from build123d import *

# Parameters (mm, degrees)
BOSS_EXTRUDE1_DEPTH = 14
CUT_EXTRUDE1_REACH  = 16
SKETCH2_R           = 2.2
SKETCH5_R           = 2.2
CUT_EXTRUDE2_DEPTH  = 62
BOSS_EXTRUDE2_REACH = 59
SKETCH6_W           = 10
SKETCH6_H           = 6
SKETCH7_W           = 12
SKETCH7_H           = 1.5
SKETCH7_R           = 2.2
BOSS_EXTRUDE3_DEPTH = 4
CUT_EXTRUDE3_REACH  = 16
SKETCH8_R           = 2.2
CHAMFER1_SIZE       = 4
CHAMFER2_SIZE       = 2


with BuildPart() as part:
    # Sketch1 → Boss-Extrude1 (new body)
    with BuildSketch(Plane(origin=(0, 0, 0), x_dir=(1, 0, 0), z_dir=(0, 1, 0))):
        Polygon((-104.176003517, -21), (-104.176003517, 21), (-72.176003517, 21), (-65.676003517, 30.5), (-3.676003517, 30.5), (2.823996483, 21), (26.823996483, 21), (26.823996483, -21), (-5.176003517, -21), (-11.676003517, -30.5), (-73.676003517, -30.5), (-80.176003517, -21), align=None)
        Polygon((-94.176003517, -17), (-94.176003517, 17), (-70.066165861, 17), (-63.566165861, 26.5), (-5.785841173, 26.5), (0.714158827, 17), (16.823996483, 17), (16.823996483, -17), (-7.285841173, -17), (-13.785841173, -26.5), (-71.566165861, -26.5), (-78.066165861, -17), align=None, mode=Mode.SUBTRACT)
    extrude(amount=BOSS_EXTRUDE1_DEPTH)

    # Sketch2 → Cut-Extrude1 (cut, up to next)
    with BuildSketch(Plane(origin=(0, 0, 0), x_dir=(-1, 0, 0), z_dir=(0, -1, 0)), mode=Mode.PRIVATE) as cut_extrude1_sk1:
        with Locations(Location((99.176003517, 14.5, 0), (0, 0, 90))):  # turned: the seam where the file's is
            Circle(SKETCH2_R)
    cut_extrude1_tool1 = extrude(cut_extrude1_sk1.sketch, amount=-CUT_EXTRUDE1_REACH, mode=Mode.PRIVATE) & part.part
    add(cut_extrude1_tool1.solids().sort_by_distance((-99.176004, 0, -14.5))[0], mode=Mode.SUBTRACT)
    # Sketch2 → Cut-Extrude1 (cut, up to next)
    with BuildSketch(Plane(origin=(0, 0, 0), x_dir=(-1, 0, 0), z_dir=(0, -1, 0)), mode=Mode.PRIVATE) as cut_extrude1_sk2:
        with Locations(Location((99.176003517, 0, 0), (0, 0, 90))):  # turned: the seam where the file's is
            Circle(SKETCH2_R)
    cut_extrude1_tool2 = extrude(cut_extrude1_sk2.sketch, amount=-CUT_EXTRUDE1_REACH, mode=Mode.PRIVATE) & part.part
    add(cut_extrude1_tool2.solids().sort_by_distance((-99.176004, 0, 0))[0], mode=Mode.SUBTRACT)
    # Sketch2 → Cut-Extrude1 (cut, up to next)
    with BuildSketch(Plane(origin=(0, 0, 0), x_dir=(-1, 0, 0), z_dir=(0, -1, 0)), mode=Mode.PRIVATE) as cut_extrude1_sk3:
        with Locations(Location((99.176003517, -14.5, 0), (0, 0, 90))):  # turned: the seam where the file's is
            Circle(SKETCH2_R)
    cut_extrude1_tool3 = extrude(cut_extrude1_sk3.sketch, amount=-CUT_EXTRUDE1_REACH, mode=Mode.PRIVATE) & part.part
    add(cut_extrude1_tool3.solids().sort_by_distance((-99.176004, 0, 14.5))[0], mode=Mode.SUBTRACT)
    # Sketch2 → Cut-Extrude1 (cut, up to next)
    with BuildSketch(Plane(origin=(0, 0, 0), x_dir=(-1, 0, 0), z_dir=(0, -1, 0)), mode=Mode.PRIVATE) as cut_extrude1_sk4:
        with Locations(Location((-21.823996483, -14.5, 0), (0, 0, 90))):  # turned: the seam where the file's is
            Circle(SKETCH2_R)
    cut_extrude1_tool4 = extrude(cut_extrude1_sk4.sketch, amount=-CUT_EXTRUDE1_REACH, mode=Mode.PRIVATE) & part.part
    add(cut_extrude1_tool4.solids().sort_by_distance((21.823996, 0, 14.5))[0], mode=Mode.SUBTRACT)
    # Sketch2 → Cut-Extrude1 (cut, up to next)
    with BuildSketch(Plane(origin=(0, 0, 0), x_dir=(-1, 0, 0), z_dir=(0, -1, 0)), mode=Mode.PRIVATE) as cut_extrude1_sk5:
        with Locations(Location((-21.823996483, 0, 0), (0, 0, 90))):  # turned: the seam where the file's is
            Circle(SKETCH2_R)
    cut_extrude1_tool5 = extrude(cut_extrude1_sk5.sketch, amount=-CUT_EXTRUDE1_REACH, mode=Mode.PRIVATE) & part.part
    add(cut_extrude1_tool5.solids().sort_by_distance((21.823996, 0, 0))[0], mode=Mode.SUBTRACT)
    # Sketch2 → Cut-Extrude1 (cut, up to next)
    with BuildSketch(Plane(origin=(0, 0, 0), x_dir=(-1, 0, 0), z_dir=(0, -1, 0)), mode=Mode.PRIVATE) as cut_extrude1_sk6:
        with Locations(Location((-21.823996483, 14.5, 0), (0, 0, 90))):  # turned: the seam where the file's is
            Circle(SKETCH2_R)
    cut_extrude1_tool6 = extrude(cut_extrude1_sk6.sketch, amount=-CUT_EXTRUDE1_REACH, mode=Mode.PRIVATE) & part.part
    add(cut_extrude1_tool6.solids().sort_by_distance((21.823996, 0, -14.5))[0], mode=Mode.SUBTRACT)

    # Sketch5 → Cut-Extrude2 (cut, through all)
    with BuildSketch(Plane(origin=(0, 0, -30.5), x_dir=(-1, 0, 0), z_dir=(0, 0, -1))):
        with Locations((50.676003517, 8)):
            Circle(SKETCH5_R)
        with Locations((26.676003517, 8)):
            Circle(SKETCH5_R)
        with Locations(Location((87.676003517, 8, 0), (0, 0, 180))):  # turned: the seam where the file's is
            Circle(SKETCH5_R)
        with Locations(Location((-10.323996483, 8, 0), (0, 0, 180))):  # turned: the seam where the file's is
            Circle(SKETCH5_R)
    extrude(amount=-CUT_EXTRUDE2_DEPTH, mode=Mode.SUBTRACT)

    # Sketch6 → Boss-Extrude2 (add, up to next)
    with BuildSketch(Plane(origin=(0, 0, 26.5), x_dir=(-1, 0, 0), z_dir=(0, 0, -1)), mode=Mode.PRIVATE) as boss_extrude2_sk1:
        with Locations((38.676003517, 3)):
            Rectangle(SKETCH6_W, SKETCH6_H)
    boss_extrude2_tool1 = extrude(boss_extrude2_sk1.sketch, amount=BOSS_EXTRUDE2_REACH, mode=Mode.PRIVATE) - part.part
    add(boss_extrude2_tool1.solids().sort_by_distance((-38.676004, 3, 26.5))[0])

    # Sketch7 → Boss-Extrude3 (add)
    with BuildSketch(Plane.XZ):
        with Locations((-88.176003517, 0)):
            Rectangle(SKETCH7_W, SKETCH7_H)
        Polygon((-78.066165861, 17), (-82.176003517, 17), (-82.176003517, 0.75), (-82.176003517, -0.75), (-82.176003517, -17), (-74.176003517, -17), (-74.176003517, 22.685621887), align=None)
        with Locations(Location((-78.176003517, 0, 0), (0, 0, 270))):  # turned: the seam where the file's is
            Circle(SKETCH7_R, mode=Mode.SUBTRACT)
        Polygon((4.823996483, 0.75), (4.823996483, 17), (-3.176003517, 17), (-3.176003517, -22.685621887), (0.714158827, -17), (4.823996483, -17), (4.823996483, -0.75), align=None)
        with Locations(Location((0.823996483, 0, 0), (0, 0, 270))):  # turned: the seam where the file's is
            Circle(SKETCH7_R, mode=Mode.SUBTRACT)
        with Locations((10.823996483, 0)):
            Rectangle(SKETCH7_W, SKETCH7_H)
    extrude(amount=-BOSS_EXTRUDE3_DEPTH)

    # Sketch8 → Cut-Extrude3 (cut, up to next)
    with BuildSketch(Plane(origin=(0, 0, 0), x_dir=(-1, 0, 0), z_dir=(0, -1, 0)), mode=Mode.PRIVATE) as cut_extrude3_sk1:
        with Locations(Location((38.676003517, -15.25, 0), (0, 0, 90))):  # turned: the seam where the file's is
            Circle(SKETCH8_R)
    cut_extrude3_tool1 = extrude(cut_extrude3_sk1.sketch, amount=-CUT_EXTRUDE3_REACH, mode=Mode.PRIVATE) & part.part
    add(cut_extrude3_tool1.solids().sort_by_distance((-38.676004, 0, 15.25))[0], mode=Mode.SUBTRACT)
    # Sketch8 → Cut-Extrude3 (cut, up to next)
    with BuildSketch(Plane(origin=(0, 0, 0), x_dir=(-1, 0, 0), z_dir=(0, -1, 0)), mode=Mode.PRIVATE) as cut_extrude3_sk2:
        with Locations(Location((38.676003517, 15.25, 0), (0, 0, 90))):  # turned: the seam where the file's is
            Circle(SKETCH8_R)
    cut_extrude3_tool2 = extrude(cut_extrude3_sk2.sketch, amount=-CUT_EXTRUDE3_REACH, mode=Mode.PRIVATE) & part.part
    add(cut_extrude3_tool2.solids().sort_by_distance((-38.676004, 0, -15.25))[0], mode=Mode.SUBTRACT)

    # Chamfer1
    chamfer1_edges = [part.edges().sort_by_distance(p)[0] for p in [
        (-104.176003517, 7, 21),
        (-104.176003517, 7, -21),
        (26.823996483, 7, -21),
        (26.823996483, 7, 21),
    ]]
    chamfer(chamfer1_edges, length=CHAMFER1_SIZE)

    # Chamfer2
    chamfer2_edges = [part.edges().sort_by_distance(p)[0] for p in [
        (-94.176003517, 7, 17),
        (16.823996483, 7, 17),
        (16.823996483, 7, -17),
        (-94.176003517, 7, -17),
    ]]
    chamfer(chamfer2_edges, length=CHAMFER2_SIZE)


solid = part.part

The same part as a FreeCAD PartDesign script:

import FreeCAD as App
import Part
import Sketcher
from FreeCAD import Vector
Q = App.Units.Quantity


def edges_at(feature, points):
    """Names of the edges that pass closest to the given points."""
    edges = feature.Shape.Edges
    near = lambda p: min(range(len(edges)), key=lambda i: edges[i].distToShape(Part.Vertex(*p))[0])
    return sorted({f"Edge{near(p) + 1}" for p in points})


def add_polygon(sketch, points):
    """Adds a closed chain of lines whose ends are joined by coincident constraints."""
    first, n = sketch.GeometryCount, len(points)
    for a, b in zip(points, points[1:] + points[:1]):
        sketch.addGeometry(Part.LineSegment(App.Vector(*a, 0), App.Vector(*b, 0)), False)
    for i in range(n):
        sketch.addConstraint(Sketcher.Constraint("Coincident", first + i, 2, first + (i + 1) % n, 1))

doc = App.newDocument("Part")
body = doc.addObject("PartDesign::Body", "Body")

sketch1 = body.newObject("Sketcher::SketchObject", "Sketch")
sketch1.AttachmentSupport = (doc.getObject("XZ_Plane"), [""])
sketch1.MapMode = "FlatFace"
add_polygon(sketch1, [(-104, -21), (-104, 21), (-80, 21), (-74, 30), (-12, 30), (-5, 21), (27, 21), (27, -21), (3, -21), (-4, -30), (-66, -30), (-72, -21)])
add_polygon(sketch1, [(-94, 17), (-94, -17), (-70, -17), (-64, -26), (-6, -26), (1, -17), (17, -17), (17, 17), (-7, 17), (-14, 26), (-72, 26), (-78, 17)])
sketch1.addConstraint(Sketcher.Constraint("Vertical", 0))
sketch1.addConstraint(Sketcher.Constraint("Horizontal", 1))
sketch1.addConstraint(Sketcher.Constraint("Horizontal", 3))
sketch1.addConstraint(Sketcher.Constraint("Horizontal", 5))
sketch1.addConstraint(Sketcher.Constraint("Vertical", 6))
sketch1.addConstraint(Sketcher.Constraint("Horizontal", 7))
sketch1.addConstraint(Sketcher.Constraint("Horizontal", 9))
sketch1.addConstraint(Sketcher.Constraint("Horizontal", 11))
sketch1.addConstraint(Sketcher.Constraint("Vertical", 12))
sketch1.addConstraint(Sketcher.Constraint("Horizontal", 13))
sketch1.addConstraint(Sketcher.Constraint("Horizontal", 15))
sketch1.addConstraint(Sketcher.Constraint("Horizontal", 17))
sketch1.addConstraint(Sketcher.Constraint("Vertical", 18))
sketch1.addConstraint(Sketcher.Constraint("Horizontal", 19))
sketch1.addConstraint(Sketcher.Constraint("Horizontal", 21))
sketch1.addConstraint(Sketcher.Constraint("Horizontal", 23))
sketch1.addConstraint(Sketcher.Constraint("Parallel", 2, 8))
sketch1.addConstraint(Sketcher.Constraint("Parallel", 4, 10))
sketch1.addConstraint(Sketcher.Constraint("Parallel", 10, 14))
sketch1.addConstraint(Sketcher.Constraint("Parallel", 8, 16))
sketch1.addConstraint(Sketcher.Constraint("Parallel", 14, 20))
sketch1.addConstraint(Sketcher.Constraint("Parallel", 16, 22))
sketch1.addConstraint(Sketcher.Constraint("Horizontal", 1, 2, 4, 2))
sketch1.addConstraint(Sketcher.Constraint("Horizontal", 7, 2, 10, 2))
sketch1.addConstraint(Sketcher.Constraint("Horizontal", 13, 2, 16, 2))
sketch1.addConstraint(Sketcher.Constraint("Horizontal", 19, 2, 22, 2))
sketch1.addConstraint(Sketcher.Constraint("Equal", 1, 7))
sketch1.addConstraint(Sketcher.Constraint("Equal", 3, 9))
sketch1.addConstraint(Sketcher.Constraint("Equal", 5, 11))
sketch1.addConstraint(Sketcher.Constraint("Equal", 13, 19))
sketch1.addConstraint(Sketcher.Constraint("Equal", 15, 21))
sketch1.addConstraint(Sketcher.Constraint("Equal", 17, 23))
sketch1.addConstraint(Sketcher.Constraint("Equal", 2, 4))
sketch1.addConstraint(Sketcher.Constraint("Equal", 10, 14))
sketch1.addConstraint(Sketcher.Constraint("DistanceX", 1, 1, 1, 2, Q("24 mm")))
sketch1.addConstraint(Sketcher.Constraint("DistanceX", 3, 1, 3, 2, Q("62 mm")))
sketch1.addConstraint(Sketcher.Constraint("DistanceX", 5, 1, 5, 2, Q("32 mm")))
sketch1.addConstraint(Sketcher.Constraint("DistanceY", 0, 1, 0, 2, Q("42 mm")))
sketch1.addConstraint(Sketcher.Constraint("DistanceY", 12, 2, 12, 1, Q("34 mm")))
sketch1.addConstraint(Sketcher.Constraint("DistanceY", -1, 1, 0, 2, Q("21 mm")))
sketch1.addConstraint(Sketcher.Constraint("DistanceY", 12, 2, -1, 1, Q("17 mm")))
sketch1.addConstraint(Sketcher.Constraint("DistanceX", 1, 2, 4, 2, Q("75 mm")))
sketch1.addConstraint(Sketcher.Constraint("DistanceY", 8, 2, 3, 2, Q("61 mm")))
sketch1.addConstraint(Sketcher.Constraint("DistanceX", 11, 2, 12, 2, Q("10 mm")))
sketch1.addConstraint(Sketcher.Constraint("DistanceX", 17, 2, 6, 2, Q("10 mm")))
sketch1.addConstraint(Sketcher.Constraint("DistanceX", 19, 2, 16, 2, Q("8 mm")))
sketch1.addConstraint(Sketcher.Constraint("DistanceX", 13, 1, 13, 2, Q("24.109838 mm")))
sketch1.addConstraint(Sketcher.Constraint("DistanceX", 15, 2, -1, 1, Q("5.785841 mm")))
pad1 = body.newObject("PartDesign::Pad", "Pad")
pad1.Profile = sketch1
pad1.Length = 14
pad1.Reversed = True

sketch2 = body.newObject("Sketcher::SketchObject", "Sketch001")
sketch2.AttachmentSupport = (doc.getObject("XZ_Plane"), [""])
sketch2.MapMode = "FlatFace"
sketch2.addGeometry(Part.Circle(Vector(-99.2, -14.5, 0), Vector(0, 0, 1), 2.2), False)
sketch2.addConstraint(Sketcher.Constraint("Diameter", 0, Q("4.4 mm")))
sketch2.addConstraint(Sketcher.Constraint("DistanceY", 0, 3, -1, 1, Q("14.5 mm")))
sketch2.addConstraint(Sketcher.Constraint("DistanceX", 0, 3, -1, 1, Q("99.176004 mm")))
pocket1 = body.newObject("PartDesign::Pocket", "Pocket")
pocket1.Profile = sketch2
pocket1.Type = "UpToFirst"

sketch3 = body.newObject("Sketcher::SketchObject", "Sketch002")
sketch3.AttachmentSupport = (doc.getObject("XZ_Plane"), [""])
sketch3.MapMode = "FlatFace"
sketch3.addGeometry(Part.Circle(Vector(-99.2, 0, 0), Vector(0, 0, 1), 2.2), False)
sketch3.addConstraint(Sketcher.Constraint("PointOnObject", 0, 3, -1))
sketch3.addConstraint(Sketcher.Constraint("Diameter", 0, Q("4.4 mm")))
sketch3.addConstraint(Sketcher.Constraint("DistanceX", 0, 3, -1, 1, Q("99.176004 mm")))
pocket2 = body.newObject("PartDesign::Pocket", "Pocket001")
pocket2.Profile = sketch3
pocket2.Type = "UpToFirst"

sketch4 = body.newObject("Sketcher::SketchObject", "Sketch003")
sketch4.AttachmentSupport = (doc.getObject("XZ_Plane"), [""])
sketch4.MapMode = "FlatFace"
sketch4.addGeometry(Part.Circle(Vector(-99.2, 14.5, 0), Vector(0, 0, 1), 2.2), False)
sketch4.addConstraint(Sketcher.Constraint("Diameter", 0, Q("4.4 mm")))
sketch4.addConstraint(Sketcher.Constraint("DistanceY", -1, 1, 0, 3, Q("14.5 mm")))
sketch4.addConstraint(Sketcher.Constraint("DistanceX", 0, 3, -1, 1, Q("99.176004 mm")))
pocket3 = body.newObject("PartDesign::Pocket", "Pocket002")
pocket3.Profile = sketch4
pocket3.Type = "UpToFirst"

sketch5 = body.newObject("Sketcher::SketchObject", "Sketch004")
sketch5.AttachmentSupport = (doc.getObject("XZ_Plane"), [""])
sketch5.MapMode = "FlatFace"
sketch5.addGeometry(Part.Circle(Vector(21.8, 14.5, 0), Vector(0, 0, 1), 2.2), False)
sketch5.addConstraint(Sketcher.Constraint("Diameter", 0, Q("4.4 mm")))
sketch5.addConstraint(Sketcher.Constraint("DistanceY", -1, 1, 0, 3, Q("14.5 mm")))
sketch5.addConstraint(Sketcher.Constraint("DistanceX", -1, 1, 0, 3, Q("21.823996 mm")))
pocket4 = body.newObject("PartDesign::Pocket", "Pocket003")
pocket4.Profile = sketch5
pocket4.Type = "UpToFirst"

sketch6 = body.newObject("Sketcher::SketchObject", "Sketch005")
sketch6.AttachmentSupport = (doc.getObject("XZ_Plane"), [""])
sketch6.MapMode = "FlatFace"
sketch6.addGeometry(Part.Circle(Vector(21.8, 0, 0), Vector(0, 0, 1), 2.2), False)
sketch6.addConstraint(Sketcher.Constraint("PointOnObject", 0, 3, -1))
sketch6.addConstraint(Sketcher.Constraint("Diameter", 0, Q("4.4 mm")))
sketch6.addConstraint(Sketcher.Constraint("DistanceX", -1, 1, 0, 3, Q("21.823996 mm")))
pocket5 = body.newObject("PartDesign::Pocket", "Pocket004")
pocket5.Profile = sketch6
pocket5.Type = "UpToFirst"

sketch7 = body.newObject("Sketcher::SketchObject", "Sketch006")
sketch7.AttachmentSupport = (doc.getObject("XZ_Plane"), [""])
sketch7.MapMode = "FlatFace"
sketch7.addGeometry(Part.Circle(Vector(21.8, -14.5, 0), Vector(0, 0, 1), 2.2), False)
sketch7.addConstraint(Sketcher.Constraint("Diameter", 0, Q("4.4 mm")))
sketch7.addConstraint(Sketcher.Constraint("DistanceY", 0, 3, -1, 1, Q("14.5 mm")))
sketch7.addConstraint(Sketcher.Constraint("DistanceX", -1, 1, 0, 3, Q("21.823996 mm")))
pocket6 = body.newObject("PartDesign::Pocket", "Pocket005")
pocket6.Profile = sketch7
pocket6.Type = "UpToFirst"

sketch8 = body.newObject("Sketcher::SketchObject", "Sketch007")
sketch8.AttachmentSupport = (doc.getObject("XY_Plane"), [""])
sketch8.MapMode = "FlatFace"
sketch8.AttachmentOffset = App.Placement(Vector(0, 0, -30.5), App.Rotation())
sketch8.addGeometry(Part.Circle(Vector(-50.7, 8, 0), Vector(0, 0, 1), 2.2), False)
sketch8.addGeometry(Part.Circle(Vector(-26.7, 8, 0), Vector(0, 0, 1), 2.2), False)
sketch8.addGeometry(Part.Circle(Vector(-87.7, 8, 0), Vector(0, 0, 1), 2.2), False)
sketch8.addGeometry(Part.Circle(Vector(10.3, 8, 0), Vector(0, 0, 1), 2.2), False)
sketch8.addConstraint(Sketcher.Constraint("Equal", 0, 1))
sketch8.addConstraint(Sketcher.Constraint("Equal", 1, 2))
sketch8.addConstraint(Sketcher.Constraint("Equal", 2, 3))
sketch8.addConstraint(Sketcher.Constraint("Horizontal", 0, 3, 1, 3))
sketch8.addConstraint(Sketcher.Constraint("Horizontal", 1, 3, 2, 3))
sketch8.addConstraint(Sketcher.Constraint("Horizontal", 2, 3, 3, 3))
sketch8.addConstraint(Sketcher.Constraint("Diameter", 0, Q("4.4 mm")))
sketch8.addConstraint(Sketcher.Constraint("DistanceY", -1, 1, 0, 3, Q("8 mm")))
sketch8.addConstraint(Sketcher.Constraint("DistanceX", 0, 3, 1, 3, Q("24 mm")))
sketch8.addConstraint(Sketcher.Constraint("DistanceX", 2, 3, 0, 3, Q("37 mm")))
sketch8.addConstraint(Sketcher.Constraint("DistanceX", 1, 3, 3, 3, Q("37 mm")))
sketch8.addConstraint(Sketcher.Constraint("DistanceX", 0, 3, -1, 1, Q("50.676004 mm")))
pocket7 = body.newObject("PartDesign::Pocket", "Pocket006")
pocket7.Profile = sketch8
pocket7.Type = "ThroughAll"
pocket7.Reversed = True

sketch9 = body.newObject("Sketcher::SketchObject", "Sketch008")
sketch9.AttachmentSupport = (doc.getObject("XY_Plane"), [""])
sketch9.MapMode = "FlatFace"
sketch9.AttachmentOffset = App.Placement(Vector(0, 0, 26.5), App.Rotation())
add_polygon(sketch9, [(-34, 6), (-34, 0), (-44, 0), (-44, 6)])
sketch9.addConstraint(Sketcher.Constraint("Vertical", 0))
sketch9.addConstraint(Sketcher.Constraint("Horizontal", 1))
sketch9.addConstraint(Sketcher.Constraint("Vertical", 2))
sketch9.addConstraint(Sketcher.Constraint("Horizontal", 3))
sketch9.addConstraint(Sketcher.Constraint("PointOnObject", 0, 2, -1))
sketch9.addConstraint(Sketcher.Constraint("DistanceX", 1, 2, 1, 1, Q("10 mm")))
sketch9.addConstraint(Sketcher.Constraint("DistanceY", 0, 2, 0, 1, Q("6 mm")))
sketch9.addConstraint(Sketcher.Constraint("DistanceX", 0, 2, -1, 1, Q("33.676004 mm")))
pad2 = body.newObject("PartDesign::Pad", "Pad001")
pad2.Profile = sketch9
pad2.Type = "UpToFirst"
pad2.Reversed = True

sketch10 = body.newObject("Sketcher::SketchObject", "Sketch009")
sketch10.AttachmentSupport = (doc.getObject("XZ_Plane"), [""])
sketch10.MapMode = "FlatFace"
add_polygon(sketch10, [(-94.2, 0.8), (-94.2, -0.8), (-82.2, -0.8), (-82.2, -17), (-74.2, -17), (-74.2, 22.7), (-78.1, 17), (-82.2, 17), (-82.2, 0.8)])
sketch10.addGeometry(Part.Circle(Vector(-78.2, 0, 0), Vector(0, 0, 1), 2.2), False)
add_polygon(sketch10, [(4.8, 17), (-3.2, 17), (-3.2, -22.7), (0.7, -17), (4.8, -17), (4.8, -0.8), (16.8, -0.8), (16.8, 0.8), (4.8, 0.8)])
sketch10.addGeometry(Part.Circle(Vector(0.8, 0, 0), Vector(0, 0, 1), 2.2), False)
sketch10.addConstraint(Sketcher.Constraint("Vertical", 0))
sketch10.addConstraint(Sketcher.Constraint("Horizontal", 1))
sketch10.addConstraint(Sketcher.Constraint("Vertical", 2))
sketch10.addConstraint(Sketcher.Constraint("Horizontal", 3))
sketch10.addConstraint(Sketcher.Constraint("Vertical", 4))
sketch10.addConstraint(Sketcher.Constraint("Horizontal", 6))
sketch10.addConstraint(Sketcher.Constraint("Vertical", 7))
sketch10.addConstraint(Sketcher.Constraint("Horizontal", 8))
sketch10.addConstraint(Sketcher.Constraint("Horizontal", 10))
sketch10.addConstraint(Sketcher.Constraint("Vertical", 11))
sketch10.addConstraint(Sketcher.Constraint("Horizontal", 13))
sketch10.addConstraint(Sketcher.Constraint("Vertical", 14))
sketch10.addConstraint(Sketcher.Constraint("Horizontal", 15))
sketch10.addConstraint(Sketcher.Constraint("Vertical", 16))
sketch10.addConstraint(Sketcher.Constraint("Horizontal", 17))
sketch10.addConstraint(Sketcher.Constraint("Vertical", 18))
sketch10.addConstraint(Sketcher.Constraint("Equal", 9, 19))
sketch10.addConstraint(Sketcher.Constraint("Symmetric", 2, 2, 6, 2, -1))
sketch10.addConstraint(Sketcher.Constraint("Symmetric", 14, 2, 17, 2, -1))
sketch10.addConstraint(Sketcher.Constraint("PointOnObject", 9, 3, -1))
sketch10.addConstraint(Sketcher.Constraint("PointOnObject", 19, 3, -1))
sketch10.addConstraint(Sketcher.Constraint("Parallel", 5, 12))
sketch10.addConstraint(Sketcher.Constraint("Horizontal", 6, 2, 10, 2))
sketch10.addConstraint(Sketcher.Constraint("Horizontal", 3, 2, 12, 2))
sketch10.addConstraint(Sketcher.Constraint("Horizontal", 1, 2, 14, 2))
sketch10.addConstraint(Sketcher.Constraint("Horizontal", 8, 2, 16, 2))
sketch10.addConstraint(Sketcher.Constraint("Equal", 3, 10))
sketch10.addConstraint(Sketcher.Constraint("Equal", 6, 13))
sketch10.addConstraint(Sketcher.Constraint("Equal", 8, 15))
sketch10.addConstraint(Sketcher.Constraint("Diameter", 9, Q("4.4 mm")))
sketch10.addConstraint(Sketcher.Constraint("DistanceX", 1, 1, 1, 2, Q("12 mm")))
sketch10.addConstraint(Sketcher.Constraint("DistanceX", 3, 1, 3, 2, Q("8 mm")))
sketch10.addConstraint(Sketcher.Constraint("DistanceY", 0, 2, 0, 1, Q("1.5 mm")))
sketch10.addConstraint(Sketcher.Constraint("DistanceY", 2, 2, -1, 1, Q("17 mm")))
sketch10.addConstraint(Sketcher.Constraint("DistanceX", 9, 3, 19, 3, Q("79 mm")))
sketch10.addConstraint(Sketcher.Constraint("DistanceX", 0, 2, 9, 3, Q("16 mm")))
sketch10.addConstraint(Sketcher.Constraint("DistanceX", 10, 2, 19, 3, Q("4 mm")))
sketch10.addConstraint(Sketcher.Constraint("DistanceY", 4, 1, 4, 2, Q("39.685622 mm")))
sketch10.addConstraint(Sketcher.Constraint("DistanceX", 6, 2, 6, 1, Q("4.109838 mm")))
sketch10.addConstraint(Sketcher.Constraint("DistanceX", -1, 1, 12, 2, Q("0.714159 mm")))
pad3 = body.newObject("PartDesign::Pad", "Pad002")
pad3.Profile = sketch10
pad3.Length = 4
pad3.Reversed = True

sketch11 = body.newObject("Sketcher::SketchObject", "Sketch010")
sketch11.AttachmentSupport = (doc.getObject("XZ_Plane"), [""])
sketch11.MapMode = "FlatFace"
sketch11.addGeometry(Part.Circle(Vector(-38.7, 15.2, 0), Vector(0, 0, 1), 2.2), False)
sketch11.addConstraint(Sketcher.Constraint("Diameter", 0, Q("4.4 mm")))
sketch11.addConstraint(Sketcher.Constraint("DistanceY", -1, 1, 0, 3, Q("15.25 mm")))
sketch11.addConstraint(Sketcher.Constraint("DistanceX", 0, 3, -1, 1, Q("38.676004 mm")))
pocket8 = body.newObject("PartDesign::Pocket", "Pocket007")
pocket8.Profile = sketch11
pocket8.Type = "UpToFirst"

sketch12 = body.newObject("Sketcher::SketchObject", "Sketch011")
sketch12.AttachmentSupport = (doc.getObject("XZ_Plane"), [""])
sketch12.MapMode = "FlatFace"
sketch12.addGeometry(Part.Circle(Vector(-38.7, -15.2, 0), Vector(0, 0, 1), 2.2), False)
sketch12.addConstraint(Sketcher.Constraint("Diameter", 0, Q("4.4 mm")))
sketch12.addConstraint(Sketcher.Constraint("DistanceY", 0, 3, -1, 1, Q("15.25 mm")))
sketch12.addConstraint(Sketcher.Constraint("DistanceX", 0, 3, -1, 1, Q("38.676004 mm")))
pocket9 = body.newObject("PartDesign::Pocket", "Pocket008")
pocket9.Profile = sketch12
pocket9.Type = "UpToFirst"
doc.recompute()

chamfer = body.newObject("PartDesign::Chamfer", "Chamfer")
chamfer.Base = (pocket9, edges_at(pocket9, [
    (-104.176, 7, 21),
    (-104.176, 7, -21),
    (26.824, 7, -21),
    (26.824, 7, 21),
]))
chamfer.Size = 4
doc.recompute()

chamfer2 = body.newObject("PartDesign::Chamfer", "Chamfer001")
chamfer2.Base = (chamfer, edges_at(chamfer, [
    (-94.176, 7, 17),
    (16.824, 7, 17),
    (16.824, 7, -17),
    (-94.176, 7, -17),
]))
chamfer2.Size = 2

doc.recompute()
